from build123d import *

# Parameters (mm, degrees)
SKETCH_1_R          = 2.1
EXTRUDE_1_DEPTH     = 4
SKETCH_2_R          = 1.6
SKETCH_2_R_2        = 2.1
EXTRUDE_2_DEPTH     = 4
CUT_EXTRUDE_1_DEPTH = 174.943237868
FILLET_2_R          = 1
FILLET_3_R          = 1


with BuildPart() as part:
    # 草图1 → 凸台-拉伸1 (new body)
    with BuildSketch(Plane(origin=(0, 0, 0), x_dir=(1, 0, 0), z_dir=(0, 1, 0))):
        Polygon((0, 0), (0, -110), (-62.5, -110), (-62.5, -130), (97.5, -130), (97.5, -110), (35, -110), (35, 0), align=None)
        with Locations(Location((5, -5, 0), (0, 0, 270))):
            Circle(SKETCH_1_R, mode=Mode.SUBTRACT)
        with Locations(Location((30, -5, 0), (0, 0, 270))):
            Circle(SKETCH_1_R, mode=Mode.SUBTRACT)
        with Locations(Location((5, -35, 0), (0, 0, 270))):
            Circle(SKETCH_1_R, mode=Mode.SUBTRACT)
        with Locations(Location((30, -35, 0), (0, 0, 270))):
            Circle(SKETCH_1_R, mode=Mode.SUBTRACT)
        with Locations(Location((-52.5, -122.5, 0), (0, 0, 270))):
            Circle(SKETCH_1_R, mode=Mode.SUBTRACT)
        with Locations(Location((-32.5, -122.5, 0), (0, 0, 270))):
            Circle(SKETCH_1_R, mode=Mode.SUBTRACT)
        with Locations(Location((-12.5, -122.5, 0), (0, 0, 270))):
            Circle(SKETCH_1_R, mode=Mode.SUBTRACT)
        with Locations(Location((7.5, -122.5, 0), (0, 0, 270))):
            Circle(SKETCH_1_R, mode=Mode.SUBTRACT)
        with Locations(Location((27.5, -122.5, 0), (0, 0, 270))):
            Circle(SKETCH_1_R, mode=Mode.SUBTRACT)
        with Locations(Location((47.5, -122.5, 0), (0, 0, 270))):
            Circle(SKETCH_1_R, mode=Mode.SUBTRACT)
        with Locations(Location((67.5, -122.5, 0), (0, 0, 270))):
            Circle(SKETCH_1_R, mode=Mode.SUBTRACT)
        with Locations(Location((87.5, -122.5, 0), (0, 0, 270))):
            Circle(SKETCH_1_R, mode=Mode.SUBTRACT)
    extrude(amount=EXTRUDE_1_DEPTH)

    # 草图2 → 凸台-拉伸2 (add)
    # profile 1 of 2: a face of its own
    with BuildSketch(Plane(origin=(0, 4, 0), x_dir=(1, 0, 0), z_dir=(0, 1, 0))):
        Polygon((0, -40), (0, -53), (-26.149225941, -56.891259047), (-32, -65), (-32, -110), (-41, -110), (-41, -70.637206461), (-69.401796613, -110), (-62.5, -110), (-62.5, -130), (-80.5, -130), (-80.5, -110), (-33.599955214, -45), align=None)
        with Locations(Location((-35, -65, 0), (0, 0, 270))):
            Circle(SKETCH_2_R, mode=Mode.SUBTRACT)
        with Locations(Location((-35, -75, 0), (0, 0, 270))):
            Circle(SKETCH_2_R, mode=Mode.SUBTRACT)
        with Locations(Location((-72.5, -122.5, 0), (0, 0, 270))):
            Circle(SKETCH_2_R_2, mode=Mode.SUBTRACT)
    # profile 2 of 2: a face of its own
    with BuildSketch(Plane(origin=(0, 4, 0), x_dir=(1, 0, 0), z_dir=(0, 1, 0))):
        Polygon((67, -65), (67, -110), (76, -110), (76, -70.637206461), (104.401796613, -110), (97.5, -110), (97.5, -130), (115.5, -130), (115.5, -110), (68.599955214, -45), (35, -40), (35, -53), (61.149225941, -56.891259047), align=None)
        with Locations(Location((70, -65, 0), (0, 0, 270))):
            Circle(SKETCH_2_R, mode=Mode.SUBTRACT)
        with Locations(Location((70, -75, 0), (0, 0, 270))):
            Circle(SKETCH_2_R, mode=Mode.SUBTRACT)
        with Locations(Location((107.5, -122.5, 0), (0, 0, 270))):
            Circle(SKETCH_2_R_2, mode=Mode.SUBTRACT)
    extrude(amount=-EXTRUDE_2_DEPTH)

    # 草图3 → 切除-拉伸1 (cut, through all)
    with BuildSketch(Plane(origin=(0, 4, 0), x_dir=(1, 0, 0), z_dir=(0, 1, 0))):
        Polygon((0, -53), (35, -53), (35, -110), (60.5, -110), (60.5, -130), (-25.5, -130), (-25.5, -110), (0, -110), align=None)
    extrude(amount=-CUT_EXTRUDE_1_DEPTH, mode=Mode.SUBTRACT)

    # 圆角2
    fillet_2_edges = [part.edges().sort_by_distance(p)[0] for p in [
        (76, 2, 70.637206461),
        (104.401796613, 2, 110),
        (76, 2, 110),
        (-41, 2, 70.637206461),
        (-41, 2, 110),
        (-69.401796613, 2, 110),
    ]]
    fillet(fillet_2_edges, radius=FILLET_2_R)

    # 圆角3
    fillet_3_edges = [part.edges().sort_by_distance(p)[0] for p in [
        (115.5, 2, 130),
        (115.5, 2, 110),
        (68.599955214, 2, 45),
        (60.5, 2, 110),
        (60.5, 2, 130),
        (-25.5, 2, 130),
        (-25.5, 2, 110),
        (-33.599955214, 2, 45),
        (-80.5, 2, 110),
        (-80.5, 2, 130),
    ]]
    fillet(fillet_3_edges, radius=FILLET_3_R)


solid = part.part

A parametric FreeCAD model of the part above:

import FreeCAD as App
import Part
import Sketcher

V = App.Vector
Q = App.Units.Quantity


def edges_at(feature, points):
    """Names of the edges that pass closest to the given points."""
    edges = feature.Shape.Edges
    near = lambda p: min(range(len(edges)), key=lambda i: edges[i].distToShape(Part.Vertex(*p))[0])
    return sorted({f"Edge{near(p) + 1}" for p in points})


def add_polygon(sketch, points):
    """Adds a closed chain of lines whose ends are joined by coincident constraints."""
    first, n = sketch.GeometryCount, len(points)
    for a, b in zip(points, points[1:] + points[:1]):
        sketch.addGeometry(Part.LineSegment(App.Vector(*a, 0), App.Vector(*b, 0)), False)
    for i in range(n):
        sketch.addConstraint(Sketcher.Constraint("Coincident", first + i, 2, first + (i + 1) % n, 1))

doc = App.newDocument("Part")
params = doc.addObject("Spreadsheet::Sheet", "Params")
for row, (alias, value) in enumerate([
    ("sketch1_diameter", "4.2 mm"),
    ("sketch1_width", "160 mm"),
    ("sketch1_width2", "35 mm"),
    ("sketch1_height", "110 mm"),
    ("sketch1_height2", "20 mm"),
    ("pad1_length", "4 mm"),
    ("sketch2_diameter", "4.2 mm"),
    ("sketch2_diameter2", "3.2 mm"),
    ("sketch2_width", "18 mm"),
    ("sketch2_width2", "9 mm"),
    ("sketch2_height", "13 mm"),
    ("pad2_length", "4 mm"),
    ("sketch3_width", "35 mm"),
    ("sketch3_width2", "86 mm"),
    ("sketch3_height", "57 mm"),
    ("sketch3_height2", "20 mm"),
    ("fillet_radius", "1 mm"),
    ("fillet2_radius", "1 mm"),
], start=1):
    params.set(f"A{row}", alias)
    params.set(f"B{row}", "=" + value)
    params.setAlias(f"B{row}", alias)

body = doc.addObject("PartDesign::Body", "Body")

# Sketch on XZ plane
sketch1 = body.newObject("Sketcher::SketchObject", "Sketch")
sketch1.AttachmentSupport = (doc.getObject("XZ_Plane"), [""])
sketch1.MapMode = "FlatFace"
add_polygon(sketch1, [(0, 0), (0, 110), (-62.5, 110), (-62.5, 130), (97.5, 130), (97.5, 110), (35, 110), (35, 0)])  # lines 0-7
sketch1.addGeometry(Part.Circle(V(-52.5, 122.5, 0), V(0, 0, 1), 2.1), False)  # 8
sketch1.addGeometry(Part.Circle(V(-32.5, 122.5, 0), V(0, 0, 1), 2.1), False)  # 9
sketch1.addGeometry(Part.Circle(V(-12.5, 122.5, 0), V(0, 0, 1), 2.1), False)  # 10
sketch1.addGeometry(Part.Circle(V(7.5, 122.5, 0), V(0, 0, 1), 2.1), False)  # 11
sketch1.addGeometry(Part.Circle(V(27.5, 122.5, 0), V(0, 0, 1), 2.1), False)  # 12
sketch1.addGeometry(Part.Circle(V(47.5, 122.5, 0), V(0, 0, 1), 2.1), False)  # 13
sketch1.addGeometry(Part.Circle(V(67.5, 122.5, 0), V(0, 0, 1), 2.1), False)  # 14
sketch1.addGeometry(Part.Circle(V(87.5, 122.5, 0), V(0, 0, 1), 2.1), False)  # 15
sketch1.addGeometry(Part.Circle(V(5, 35, 0), V(0, 0, 1), 2.1), False)  # 16
sketch1.addGeometry(Part.Circle(V(5, 5, 0), V(0, 0, 1), 2.1), False)  # 17
sketch1.addGeometry(Part.Circle(V(30, 35, 0), V(0, 0, 1), 2.1), False)  # 18
sketch1.addGeometry(Part.Circle(V(30, 5, 0), V(0, 0, 1), 2.1), False)  # 19
sketch1.addConstraint(Sketcher.Constraint("Vertical", 0))
sketch1.addConstraint(Sketcher.Constraint("Horizontal", 1))
sketch1.addConstraint(Sketcher.Constraint("Vertical", 2))
sketch1.addConstraint(Sketcher.Constraint("Horizontal", 3))
sketch1.addConstraint(Sketcher.Constraint("Vertical", 4))
sketch1.addConstraint(Sketcher.Constraint("Horizontal", 5))
sketch1.addConstraint(Sketcher.Constraint("Vertical", 6))
sketch1.addConstraint(Sketcher.Constraint("Horizontal", 7))
sketch1.addConstraint(Sketcher.Constraint("Coincident", 7, 2, -1, 1))
sketch1.addConstraint(Sketcher.Constraint("Equal", 8, 9))
sketch1.addConstraint(Sketcher.Constraint("Equal", 9, 10))
sketch1.addConstraint(Sketcher.Constraint("Equal", 10, 11))
sketch1.addConstraint(Sketcher.Constraint("Equal", 11, 12))
sketch1.addConstraint(Sketcher.Constraint("Equal", 12, 13))
sketch1.addConstraint(Sketcher.Constraint("Equal", 13, 14))
sketch1.addConstraint(Sketcher.Constraint("Equal", 14, 15))
sketch1.addConstraint(Sketcher.Constraint("Equal", 15, 16))
sketch1.addConstraint(Sketcher.Constraint("Equal", 16, 17))
sketch1.addConstraint(Sketcher.Constraint("Equal", 17, 18))
sketch1.addConstraint(Sketcher.Constraint("Equal", 18, 19))
sketch1.addConstraint(Sketcher.Constraint("Horizontal", 8, 3, 9, 3))
sketch1.addConstraint(Sketcher.Constraint("Horizontal", 9, 3, 10, 3))
sketch1.addConstraint(Sketcher.Constraint("Horizontal", 10, 3, 11, 3))
sketch1.addConstraint(Sketcher.Constraint("Horizontal", 11, 3, 12, 3))
sketch1.addConstraint(Sketcher.Constraint("Horizontal", 12, 3, 13, 3))
sketch1.addConstraint(Sketcher.Constraint("Horizontal", 13, 3, 14, 3))
sketch1.addConstraint(Sketcher.Constraint("Horizontal", 14, 3, 15, 3))
sketch1.addConstraint(Sketcher.Constraint("Horizontal", 16, 3, 18, 3))
sketch1.addConstraint(Sketcher.Constraint("Horizontal", 17, 3, 19, 3))
sketch1.addConstraint(Sketcher.Constraint("Horizontal", 1, 2, 4, 2))
sketch1.addConstraint(Sketcher.Constraint("Vertical", 16, 3, 17, 3))
sketch1.addConstraint(Sketcher.Constraint("Vertical", 18, 3, 19, 3))
sketch1.addConstraint(Sketcher.Constraint("Equal", 1, 5))
sketch1.addConstraint(Sketcher.Constraint("Diameter", 8, Q("4.2 mm")))
sketch1.addConstraint(Sketcher.Constraint("DistanceX", 3, 1, 3, 2, Q("160 mm")))
sketch1.addConstraint(Sketcher.Constraint("DistanceX", 7, 2, 7, 1, Q("35 mm")))
sketch1.addConstraint(Sketcher.Constraint("DistanceY", 0, 1, 0, 2, Q("110 mm")))
sketch1.addConstraint(Sketcher.Constraint("DistanceY", 2, 1, 2, 2, Q("20 mm")))
sketch1.addConstraint(Sketcher.Constraint("DistanceX", -1, 1, 16, 3, Q("5 mm")))
sketch1.addConstraint(Sketcher.Constraint("DistanceY", -1, 1, 16, 3, Q("35 mm")))
sketch1.addConstraint(Sketcher.Constraint("DistanceY", -1, 1, 17, 3, Q("5 mm")))
sketch1.addConstraint(Sketcher.Constraint("DistanceX", -1, 1, 18, 3, Q("30 mm")))
sketch1.addConstraint(Sketcher.Constraint("DistanceX", 8, 3, 9, 3, Q("20 mm")))
sketch1.addConstraint(Sketcher.Constraint("DistanceX", 9, 3, 10, 3, Q("20 mm")))
sketch1.addConstraint(Sketcher.Constraint("DistanceX", 10, 3, 11, 3, Q("20 mm")))
sketch1.addConstraint(Sketcher.Constraint("DistanceX", 11, 3, 12, 3, Q("20 mm")))
sketch1.addConstraint(Sketcher.Constraint("DistanceX", 12, 3, 13, 3, Q("20 mm")))
sketch1.addConstraint(Sketcher.Constraint("DistanceX", 13, 3, 14, 3, Q("20 mm")))
sketch1.addConstraint(Sketcher.Constraint("DistanceX", 14, 3, 15, 3, Q("20 mm")))
sketch1.addConstraint(Sketcher.Constraint("DistanceX", 1, 2, 8, 3, Q("10 mm")))
sketch1.addConstraint(Sketcher.Constraint("DistanceY", -1, 1, 8, 3, Q("122.5 mm")))
sketch1.setExpression("Constraints[41]", "Params.sketch1_diameter")
sketch1.setExpression("Constraints[42]", "Params.sketch1_width")
sketch1.setExpression("Constraints[43]", "Params.sketch1_width2")
sketch1.setExpression("Constraints[44]", "Params.sketch1_height")
sketch1.setExpression("Constraints[45]", "Params.sketch1_height2")
pad1 = body.newObject("PartDesign::Pad", "Pad")
pad1.Profile = sketch1
pad1.setExpression("Length", "Params.pad1_length")
pad1.Reversed = True

# Sketch on XZ plane
sketch2 = body.newObject("Sketcher::SketchObject", "Sketch001")
sketch2.AttachmentSupport = (doc.getObject("XZ_Plane"), [""])
sketch2.MapMode = "FlatFace"
sketch2.AttachmentOffset = App.Placement(V(0, 0, -4), App.Rotation())
add_polygon(sketch2, [(0, 53), (0, 40), (-33.6, 45), (-80.5, 110), (-80.5, 130), (-62.5, 130), (-62.5, 110), (-69.4, 110), (-41, 70.6), (-41, 110), (-32, 110), (-32, 65), (-26.1, 56.9)])  # lines 0-12
sketch2.addGeometry(Part.Circle(V(-72.5, 122.5, 0), V(0, 0, 1), 2.1), False)  # 13
sketch2.addGeometry(Part.Circle(V(-35, 75, 0), V(0, 0, 1), 1.6), False)  # 14
sketch2.addGeometry(Part.Circle(V(-35, 65, 0), V(0, 0, 1), 1.6), False)  # 15
add_polygon(sketch2, [(67, 65), (67, 110), (76, 110), (76, 70.6), (104.4, 110), (97.5, 110), (97.5, 130), (115.5, 130), (115.5, 110), (68.6, 45), (35, 40), (35, 53), (61.1, 56.9)])  # lines 16-28
sketch2.addGeometry(Part.Circle(V(107.5, 122.5, 0), V(0, 0, 1), 2.1), False)  # 29
sketch2.addGeometry(Part.Circle(V(70, 75, 0), V(0, 0, 1), 1.6), False)  # 30
sketch2.addGeometry(Part.Circle(V(70, 65, 0), V(0, 0, 1), 1.6), False)  # 31
sketch2.addConstraint(Sketcher.Constraint("Vertical", 0))
sketch2.addConstraint(Sketcher.Constraint("Vertical", 3))
sketch2.addConstraint(Sketcher.Constraint("Horizontal", 4))
sketch2.addConstraint(Sketcher.Constraint("Vertical", 5))
sketch2.addConstraint(Sketcher.Constraint("Horizontal", 6))
sketch2.addConstraint(Sketcher.Constraint("Vertical", 8))
sketch2.addConstraint(Sketcher.Constraint("Horizontal", 9))
sketch2.addConstraint(Sketcher.Constraint("Vertical", 10))
sketch2.addConstraint(Sketcher.Constraint("Vertical", 16))
sketch2.addConstraint(Sketcher.Constraint("Horizontal", 17))
sketch2.addConstraint(Sketcher.Constraint("Vertical", 18))
sketch2.addConstraint(Sketcher.Constraint("Horizontal", 20))
sketch2.addConstraint(Sketcher.Constraint("Vertical", 21))
sketch2.addConstraint(Sketcher.Constraint("Horizontal", 22))
sketch2.addConstraint(Sketcher.Constraint("Vertical", 23))
sketch2.addConstraint(Sketcher.Constraint("Vertical", 26))
sketch2.addConstraint(Sketcher.Constraint("Equal", 14, 15))
sketch2.addConstraint(Sketcher.Constraint("Equal", 13, 29))
sketch2.addConstraint(Sketcher.Constraint("Equal", 15, 30))
sketch2.addConstraint(Sketcher.Constraint("Equal", 30, 31))
sketch2.addConstraint(Sketcher.Constraint("PointOnObject", 0, 2, -2))
sketch2.addConstraint(Sketcher.Constraint("Parallel", 2, 7))
sketch2.addConstraint(Sketcher.Constraint("Parallel", 7, 11))
sketch2.addConstraint(Sketcher.Constraint("Parallel", 1, 12))
sketch2.addConstraint(Sketcher.Constraint("Parallel", 19, 24))
sketch2.addConstraint(Sketcher.Constraint("Parallel", 25, 27))
sketch2.addConstraint(Sketcher.Constraint("Parallel", 24, 28))
sketch2.addConstraint(Sketcher.Constraint("Horizontal", 13, 3, 29, 3))
sketch2.addConstraint(Sketcher.Constraint("Horizontal", 14, 3, 30, 3))
sketch2.addConstraint(Sketcher.Constraint("Horizontal", 15, 3, 31, 3))
sketch2.addConstraint(Sketcher.Constraint("Horizontal", 2, 2, 5, 2))
sketch2.addConstraint(Sketcher.Constraint("Horizontal", 6, 2, 8, 2))
sketch2.addConstraint(Sketcher.Constraint("Horizontal", 31, 3, 10, 2))
sketch2.addConstraint(Sketcher.Constraint("Horizontal", 9, 2, 16, 2))
sketch2.addConstraint(Sketcher.Constraint("Horizontal", 7, 2, 18, 2))
sketch2.addConstraint(Sketcher.Constraint("Horizontal", 17, 2, 19, 2))
sketch2.addConstraint(Sketcher.Constraint("Horizontal", 4, 2, 21, 2))
sketch2.addConstraint(Sketcher.Constraint("Horizontal", 20, 2, 23, 2))
sketch2.addConstraint(Sketcher.Constraint("Horizontal", 1, 2, 24, 2))
sketch2.addConstraint(Sketcher.Constraint("Horizontal", 0, 2, 25, 2))
sketch2.addConstraint(Sketcher.Constraint("Horizontal", 12, 2, 26, 2))
sketch2.addConstraint(Sketcher.Constraint("Horizontal", 11, 2, 27, 2))
sketch2.addConstraint(Sketcher.Constraint("Horizontal", 10, 2, 28, 2))
sketch2.addConstraint(Sketcher.Constraint("Vertical", 14, 3, 15, 3))
sketch2.addConstraint(Sketcher.Constraint("Vertical", 30, 3, 31, 3))
sketch2.addConstraint(Sketcher.Constraint("Equal", 9, 17))
sketch2.addConstraint(Sketcher.Constraint("Equal", 6, 20))
sketch2.addConstraint(Sketcher.Constraint("Equal", 4, 22))
sketch2.addConstraint(Sketcher.Constraint("Equal", 7, 19))
sketch2.addConstraint(Sketcher.Constraint("Diameter", 13, Q("4.2 mm")))
sketch2.addConstraint(Sketcher.Constraint("Diameter", 14, Q("3.2 mm")))
sketch2.addConstraint(Sketcher.Constraint("DistanceX", 4, 1, 4, 2, Q("18 mm")))
sketch2.addConstraint(Sketcher.Constraint("DistanceX", 9, 1, 9, 2, Q("9 mm")))
sketch2.addConstraint(Sketcher.Constraint("DistanceY", 0, 2, 0, 1, Q("13 mm")))
sketch2.addConstraint(Sketcher.Constraint("DistanceY", 3, 1, 3, 2, Q("20 mm")))
sketch2.addConstraint(Sketcher.Constraint("DistanceY", 10, 2, 10, 1, Q("45 mm")))
sketch2.addConstraint(Sketcher.Constraint("DistanceX", 14, 3, -1, 1, Q("35 mm")))
sketch2.addConstraint(Sketcher.Constraint("DistanceY", -1, 1, 14, 3, Q("75 mm")))
sketch2.addConstraint(Sketcher.Constraint("DistanceY", -1, 1, 15, 3, Q("65 mm")))
sketch2.addConstraint(Sketcher.Constraint("DistanceX", -1, 1, 30, 3, Q("70 mm")))
sketch2.addConstraint(Sketcher.Constraint("DistanceY", -1, 1, 0, 2, Q("40 mm")))
sketch2.addConstraint(Sketcher.Constraint("DistanceY", -1, 1, 1, 2, Q("45 mm")))
sketch2.addConstraint(Sketcher.Constraint("DistanceX", 7, 2, -1, 1, Q("41 mm")))
sketch2.addConstraint(Sketcher.Constraint("DistanceX", -1, 1, 16, 2, Q("67 mm")))
sketch2.addConstraint(Sketcher.Constraint("DistanceX", 13, 3, 29, 3, Q("180 mm")))
sketch2.addConstraint(Sketcher.Constraint("DistanceX", 2, 2, 13, 3, Q("8 mm")))
sketch2.addConstraint(Sketcher.Constraint("DistanceX", 20, 2, 29, 3, Q("10 mm")))
sketch2.addConstraint(Sketcher.Constraint("DistanceY", -1, 1, 13, 3, Q("122.5 mm")))
sketch2.addConstraint(Sketcher.Constraint("Distance", 2, Q("80.153691 mm")))
sketch2.addConstraint(Sketcher.Constraint("DistanceX", 6, 2, 6, 1, Q("6.901797 mm")))
sketch2.setExpression("Constraints[75]", "Params.sketch2_diameter")
sketch2.setExpression("Constraints[76]", "Params.sketch2_diameter2")
sketch2.setExpression("Constraints[77]", "Params.sketch2_width")
sketch2.setExpression("Constraints[78]", "Params.sketch2_width2")
sketch2.setExpression("Constraints[79]", "Params.sketch2_height")
pad2 = body.newObject("PartDesign::Pad", "Pad001")
pad2.Profile = sketch2
pad2.setExpression("Length", "Params.pad2_length")

# Sketch on XZ plane
sketch3 = body.newObject("Sketcher::SketchObject", "Sketch002")
sketch3.AttachmentSupport = (doc.getObject("XZ_Plane"), [""])
sketch3.MapMode = "FlatFace"
sketch3.AttachmentOffset = App.Placement(V(0, 0, -4), App.Rotation())
add_polygon(sketch3, [(35, 53), (0, 53), (0, 110), (-26, 110), (-26, 130), (60, 130), (60, 110), (35, 110)])  # lines 0-7
sketch3.addConstraint(Sketcher.Constraint("Horizontal", 0))
sketch3.addConstraint(Sketcher.Constraint("Vertical", 1))
sketch3.addConstraint(Sketcher.Constraint("Horizontal", 2))
sketch3.addConstraint(Sketcher.Constraint("Vertical", 3))
sketch3.addConstraint(Sketcher.Constraint("Horizontal", 4))
sketch3.addConstraint(Sketcher.Constraint("Vertical", 5))
sketch3.addConstraint(Sketcher.Constraint("Horizontal", 6))
sketch3.addConstraint(Sketcher.Constraint("Vertical", 7))
sketch3.addConstraint(Sketcher.Constraint("PointOnObject", 0, 2, -2))
sketch3.addConstraint(Sketcher.Constraint("Horizontal", 2, 2, 5, 2))
sketch3.addConstraint(Sketcher.Constraint("Equal", 2, 6))
sketch3.addConstraint(Sketcher.Constraint("DistanceX", 0, 2, 0, 1, Q("35 mm")))
sketch3.addConstraint(Sketcher.Constraint("DistanceX", 4, 1, 4, 2, Q("86 mm")))
sketch3.addConstraint(Sketcher.Constraint("DistanceY", 1, 1, 1, 2, Q("57 mm")))
sketch3.addConstraint(Sketcher.Constraint("DistanceY", 3, 1, 3, 2, Q("20 mm")))
sketch3.addConstraint(Sketcher.Constraint("DistanceY", -1, 1, 0, 2, Q("53 mm")))
sketch3.setExpression("Constraints[19]", "Params.sketch3_width")
sketch3.setExpression("Constraints[20]", "Params.sketch3_width2")
sketch3.setExpression("Constraints[21]", "Params.sketch3_height")
sketch3.setExpression("Constraints[22]", "Params.sketch3_height2")
pocket1 = body.newObject("PartDesign::Pocket", "Pocket")
pocket1.Profile = sketch3
pocket1.Type = "ThroughAll"
pocket1.Reversed = True
doc.recompute()

fillet = body.newObject("PartDesign::Fillet", "Fillet")
fillet.Base = (pocket1, edges_at(pocket1, [
    (76, 2, 70.637),
    (104.402, 2, 110),
    (76, 2, 110),
    (-41, 2, 70.637),
    (-41, 2, 110),
    (-69.402, 2, 110),
]))
fillet.setExpression("Radius", "Params.fillet_radius")
doc.recompute()

fillet2 = body.newObject("PartDesign::Fillet", "Fillet001")
fillet2.Base = (fillet, edges_at(fillet, [
    (115.5, 2, 130),
    (115.5, 2, 110),
    (68.6, 2, 45),
    (60.5, 2, 110),
    (60.5, 2, 130),
    (-25.5, 2, 130),
    (-25.5, 2, 110),
    (-33.6, 2, 45),
    (-80.5, 2, 110),
    (-80.5, 2, 130),
]))
fillet2.setExpression("Radius", "Params.fillet2_radius")

doc.recompute()
